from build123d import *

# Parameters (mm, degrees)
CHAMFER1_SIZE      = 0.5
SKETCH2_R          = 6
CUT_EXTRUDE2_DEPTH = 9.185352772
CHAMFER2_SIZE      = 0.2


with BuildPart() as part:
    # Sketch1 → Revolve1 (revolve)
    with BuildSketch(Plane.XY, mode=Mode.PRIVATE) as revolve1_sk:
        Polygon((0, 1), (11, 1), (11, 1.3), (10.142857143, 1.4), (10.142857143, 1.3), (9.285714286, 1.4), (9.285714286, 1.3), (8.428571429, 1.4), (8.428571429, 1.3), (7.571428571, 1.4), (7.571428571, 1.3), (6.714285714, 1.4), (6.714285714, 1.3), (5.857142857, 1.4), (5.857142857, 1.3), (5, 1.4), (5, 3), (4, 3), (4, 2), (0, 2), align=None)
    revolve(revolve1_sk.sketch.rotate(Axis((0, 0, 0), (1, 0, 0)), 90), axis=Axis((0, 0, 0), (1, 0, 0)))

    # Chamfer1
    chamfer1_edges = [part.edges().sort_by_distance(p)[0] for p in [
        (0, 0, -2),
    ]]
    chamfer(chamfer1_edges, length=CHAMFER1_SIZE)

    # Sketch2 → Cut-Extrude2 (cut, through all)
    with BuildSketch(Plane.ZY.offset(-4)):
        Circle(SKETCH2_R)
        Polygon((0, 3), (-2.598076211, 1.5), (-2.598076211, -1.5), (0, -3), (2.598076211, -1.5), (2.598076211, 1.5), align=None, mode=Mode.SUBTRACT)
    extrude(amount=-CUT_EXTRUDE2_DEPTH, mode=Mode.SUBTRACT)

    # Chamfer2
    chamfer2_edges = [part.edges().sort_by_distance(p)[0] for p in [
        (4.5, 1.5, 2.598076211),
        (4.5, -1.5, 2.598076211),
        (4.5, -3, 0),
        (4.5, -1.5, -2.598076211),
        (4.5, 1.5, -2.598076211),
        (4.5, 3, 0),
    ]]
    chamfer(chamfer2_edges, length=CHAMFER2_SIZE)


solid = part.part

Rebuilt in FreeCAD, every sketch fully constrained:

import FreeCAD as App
import Part
import Sketcher

V = App.Vector
Q = App.Units.Quantity


def edges_at(feature, points):
    """Names of the edges that pass closest to the given points."""
    edges = feature.Shape.Edges
    near = lambda p: min(range(len(edges)), key=lambda i: edges[i].distToShape(Part.Vertex(*p))[0])
    return sorted({f"Edge{near(p) + 1}" for p in points})

doc = App.newDocument("Part")
body = doc.addObject("PartDesign::Body", "Body")

# Sketch on XY plane
sketch1 = doc.addObject("Sketcher::SketchObject", "Sketch")
body.addObject(sketch1)
sketch1.AttachmentSupport = (doc.XY_Plane, [""])
sketch1.MapMode = "FlatFace"
sketch1.addGeometry([
    Part.LineSegment(V(0, 1, 0), V(11, 1, 0)),  # 0
    Part.LineSegment(V(11, 1, 0), V(11, 1.3, 0)),  # 1
    Part.LineSegment(V(11, 1.3, 0), V(10.14, 1.4, 0)),  # 2
    Part.LineSegment(V(10.14, 1.4, 0), V(10.14, 1.3, 0)),  # 3
    Part.LineSegment(V(10.14, 1.3, 0), V(9.29, 1.4, 0)),  # 4
    Part.LineSegment(V(9.29, 1.4, 0), V(9.29, 1.3, 0)),  # 5
    Part.LineSegment(V(9.29, 1.3, 0), V(8.43, 1.4, 0)),  # 6
    Part.LineSegment(V(8.43, 1.4, 0), V(8.43, 1.3, 0)),  # 7
    Part.LineSegment(V(8.43, 1.3, 0), V(7.57, 1.4, 0)),  # 8
    Part.LineSegment(V(7.57, 1.4, 0), V(7.57, 1.3, 0)),  # 9
    Part.LineSegment(V(7.57, 1.3, 0), V(6.71, 1.4, 0)),  # 10
    Part.LineSegment(V(6.71, 1.4, 0), V(6.71, 1.3, 0)),  # 11
    Part.LineSegment(V(6.71, 1.3, 0), V(5.86, 1.4, 0)),  # 12
    Part.LineSegment(V(5.86, 1.4, 0), V(5.86, 1.3, 0)),  # 13
    Part.LineSegment(V(5.86, 1.3, 0), V(5, 1.4, 0)),  # 14
    Part.LineSegment(V(5, 1.4, 0), V(5, 3, 0)),  # 15
    Part.LineSegment(V(5, 3, 0), V(4, 3, 0)),  # 16
    Part.LineSegment(V(4, 3, 0), V(4, 2, 0)),  # 17
    Part.LineSegment(V(4, 2, 0), V(0, 2, 0)),  # 18
    Part.LineSegment(V(0, 2, 0), V(0, 1, 0)),  # 19
], False)
sketch1.addConstraint([
    Sketcher.Constraint("Coincident", 0, 2, 1, 1),
    Sketcher.Constraint("Coincident", 1, 2, 2, 1),
    Sketcher.Constraint("Coincident", 2, 2, 3, 1),
    Sketcher.Constraint("Coincident", 3, 2, 4, 1),
    Sketcher.Constraint("Coincident", 4, 2, 5, 1),
    Sketcher.Constraint("Coincident", 5, 2, 6, 1),
    Sketcher.Constraint("Coincident", 6, 2, 7, 1),
    Sketcher.Constraint("Coincident", 7, 2, 8, 1),
    Sketcher.Constraint("Coincident", 8, 2, 9, 1),
    Sketcher.Constraint("Coincident", 9, 2, 10, 1),
    Sketcher.Constraint("Coincident", 10, 2, 11, 1),
    Sketcher.Constraint("Coincident", 11, 2, 12, 1),
    Sketcher.Constraint("Coincident", 12, 2, 13, 1),
    Sketcher.Constraint("Coincident", 13, 2, 14, 1),
    Sketcher.Constraint("Coincident", 14, 2, 15, 1),
    Sketcher.Constraint("Coincident", 15, 2, 16, 1),
    Sketcher.Constraint("Coincident", 16, 2, 17, 1),
    Sketcher.Constraint("Coincident", 17, 2, 18, 1),
    Sketcher.Constraint("Coincident", 18, 2, 19, 1),
    Sketcher.Constraint("Coincident", 19, 2, 0, 1),
    Sketcher.Constraint("Horizontal", 0),
    Sketcher.Constraint("Vertical", 1),
    Sketcher.Constraint("Vertical", 3),
    Sketcher.Constraint("Vertical", 5),
    Sketcher.Constraint("Vertical", 7),
    Sketcher.Constraint("Vertical", 9),
    Sketcher.Constraint("Vertical", 11),
    Sketcher.Constraint("Vertical", 13),
    Sketcher.Constraint("Vertical", 15),
    Sketcher.Constraint("Horizontal", 16),
    Sketcher.Constraint("Vertical", 17),
    Sketcher.Constraint("Horizontal", 18),
    Sketcher.Constraint("Vertical", 19),
    Sketcher.Constraint("PointOnObject", 18, 2, -2),
    Sketcher.Constraint("Parallel", 2, 4),
    Sketcher.Constraint("Parallel", 4, 6),
    Sketcher.Constraint("Parallel", 6, 8),
    Sketcher.Constraint("Parallel", 8, 10),
    Sketcher.Constraint("Parallel", 10, 12),
    Sketcher.Constraint("Parallel", 12, 14),
    Sketcher.Constraint("Horizontal", 1, 2, 3, 2),
    Sketcher.Constraint("Horizontal", 2, 2, 4, 2),
    Sketcher.Constraint("Horizontal", 3, 2, 5, 2),
    Sketcher.Constraint("Horizontal", 4, 2, 6, 2),
    Sketcher.Constraint("Horizontal", 5, 2, 7, 2),
    Sketcher.Constraint("Horizontal", 6, 2, 8, 2),
    Sketcher.Constraint("Horizontal", 7, 2, 9, 2),
    Sketcher.Constraint("Horizontal", 8, 2, 10, 2),
    Sketcher.Constraint("Horizontal", 9, 2, 11, 2),
    Sketcher.Constraint("Horizontal", 10, 2, 12, 2),
    Sketcher.Constraint("Horizontal", 11, 2, 13, 2),
    Sketcher.Constraint("Horizontal", 12, 2, 14, 2),
    Sketcher.Constraint("Equal", 16, 17),
    Sketcher.Constraint("Equal", 17, 19),
    Sketcher.Constraint("DistanceX", 0, 1, 0, 2, 11.0),
    Sketcher.Constraint("DistanceX", 16, 2, 16, 1, 1.0),
    Sketcher.Constraint("DistanceX", 18, 2, 18, 1, 4.0),
    Sketcher.Constraint("DistanceY", 1, 1, 1, 2, 0.3),
    Sketcher.Constraint("DistanceY", 3, 2, 3, 1, 0.1),
    Sketcher.Constraint("DistanceY", -1, 1, 0, 2, 1.0),
])
revolution = doc.addObject("PartDesign::Revolution", "Revolution")
body.addObject(revolution)
revolution.Profile = sketch1
revolution.ReferenceAxis = (sketch1, ["H_Axis"])
revolution.Angle = 360
doc.recompute()

chamfer = doc.addObject("PartDesign::Chamfer", "Chamfer")
body.addObject(chamfer)
chamfer.Base = (revolution, edges_at(revolution, [(0, 0, -2)]))
chamfer.Size = 0.5

# Sketch on YZ plane
sketch2 = doc.addObject("Sketcher::SketchObject", "Sketch001")
body.addObject(sketch2)
sketch2.AttachmentSupport = (doc.YZ_Plane, [""])
sketch2.MapMode = "FlatFace"
sketch2.AttachmentOffset = App.Placement(V(0, 0, 4), App.Rotation())
sketch2.addGeometry([
    Part.Circle(V(0, 0, 0), V(0, 0, 1), 6),  # 0
    Part.LineSegment(V(1.5, -2.6, 0), V(3, 0, 0)),  # 1
    Part.LineSegment(V(3, 0, 0), V(1.5, 2.6, 0)),  # 2
    Part.LineSegment(V(1.5, 2.6, 0), V(-1.5, 2.6, 0)),  # 3
    Part.LineSegment(V(-1.5, 2.6, 0), V(-3, 0, 0)),  # 4
    Part.LineSegment(V(-3, 0, 0), V(-1.5, -2.6, 0)),  # 5
    Part.LineSegment(V(-1.5, -2.6, 0), V(1.5, -2.6, 0)),  # 6
], False)
sketch2.addConstraint([
    Sketcher.Constraint("Coincident", 1, 2, 2, 1),
    Sketcher.Constraint("Coincident", 2, 2, 3, 1),
    Sketcher.Constraint("Coincident", 3, 2, 4, 1),
    Sketcher.Constraint("Coincident", 4, 2, 5, 1),
    Sketcher.Constraint("Coincident", 5, 2, 6, 1),
    Sketcher.Constraint("Coincident", 6, 2, 1, 1),
    Sketcher.Constraint("Horizontal", 3),
    Sketcher.Constraint("Horizontal", 6),
    Sketcher.Constraint("Coincident", 0, 3, -1, 1),
    Sketcher.Constraint("Symmetric", 1, 2, 4, 2, -1, 1),
    Sketcher.Constraint("Symmetric", 2, 2, 5, 2, -1, 1),
    Sketcher.Constraint("PointOnObject", 1, 2, -1),
    Sketcher.Constraint("Parallel", 1, 4),
    Sketcher.Constraint("Vertical", 3, 2, 5, 2),
    Sketcher.Constraint("Diameter", 0, 12.0),
    Sketcher.Constraint("DistanceX", 3, 2, 3, 1, 3.0),
    Sketcher.Constraint("Angle", 1, Q("60 deg")),
    Sketcher.Constraint("Distance", 1, 3.0),
])
pocket1 = doc.addObject("PartDesign::Pocket", "Pocket")
body.addObject(pocket1)
pocket1.Profile = sketch2
pocket1.Type = "ThroughAll"
pocket1.Reversed = True
doc.recompute()

chamfer2 = doc.addObject("PartDesign::Chamfer", "Chamfer001")
body.addObject(chamfer2)
chamfer2.Base = (pocket1, edges_at(pocket1, [
    (4.5, 1.5, 2.598),
    (4.5, -1.5, 2.598),
    (4.5, -3, 0),
    (4.5, -1.5, -2.598),
    (4.5, 1.5, -2.598),
    (4.5, 3, 0),
]))
chamfer2.Size = 0.2

doc.recompute()
